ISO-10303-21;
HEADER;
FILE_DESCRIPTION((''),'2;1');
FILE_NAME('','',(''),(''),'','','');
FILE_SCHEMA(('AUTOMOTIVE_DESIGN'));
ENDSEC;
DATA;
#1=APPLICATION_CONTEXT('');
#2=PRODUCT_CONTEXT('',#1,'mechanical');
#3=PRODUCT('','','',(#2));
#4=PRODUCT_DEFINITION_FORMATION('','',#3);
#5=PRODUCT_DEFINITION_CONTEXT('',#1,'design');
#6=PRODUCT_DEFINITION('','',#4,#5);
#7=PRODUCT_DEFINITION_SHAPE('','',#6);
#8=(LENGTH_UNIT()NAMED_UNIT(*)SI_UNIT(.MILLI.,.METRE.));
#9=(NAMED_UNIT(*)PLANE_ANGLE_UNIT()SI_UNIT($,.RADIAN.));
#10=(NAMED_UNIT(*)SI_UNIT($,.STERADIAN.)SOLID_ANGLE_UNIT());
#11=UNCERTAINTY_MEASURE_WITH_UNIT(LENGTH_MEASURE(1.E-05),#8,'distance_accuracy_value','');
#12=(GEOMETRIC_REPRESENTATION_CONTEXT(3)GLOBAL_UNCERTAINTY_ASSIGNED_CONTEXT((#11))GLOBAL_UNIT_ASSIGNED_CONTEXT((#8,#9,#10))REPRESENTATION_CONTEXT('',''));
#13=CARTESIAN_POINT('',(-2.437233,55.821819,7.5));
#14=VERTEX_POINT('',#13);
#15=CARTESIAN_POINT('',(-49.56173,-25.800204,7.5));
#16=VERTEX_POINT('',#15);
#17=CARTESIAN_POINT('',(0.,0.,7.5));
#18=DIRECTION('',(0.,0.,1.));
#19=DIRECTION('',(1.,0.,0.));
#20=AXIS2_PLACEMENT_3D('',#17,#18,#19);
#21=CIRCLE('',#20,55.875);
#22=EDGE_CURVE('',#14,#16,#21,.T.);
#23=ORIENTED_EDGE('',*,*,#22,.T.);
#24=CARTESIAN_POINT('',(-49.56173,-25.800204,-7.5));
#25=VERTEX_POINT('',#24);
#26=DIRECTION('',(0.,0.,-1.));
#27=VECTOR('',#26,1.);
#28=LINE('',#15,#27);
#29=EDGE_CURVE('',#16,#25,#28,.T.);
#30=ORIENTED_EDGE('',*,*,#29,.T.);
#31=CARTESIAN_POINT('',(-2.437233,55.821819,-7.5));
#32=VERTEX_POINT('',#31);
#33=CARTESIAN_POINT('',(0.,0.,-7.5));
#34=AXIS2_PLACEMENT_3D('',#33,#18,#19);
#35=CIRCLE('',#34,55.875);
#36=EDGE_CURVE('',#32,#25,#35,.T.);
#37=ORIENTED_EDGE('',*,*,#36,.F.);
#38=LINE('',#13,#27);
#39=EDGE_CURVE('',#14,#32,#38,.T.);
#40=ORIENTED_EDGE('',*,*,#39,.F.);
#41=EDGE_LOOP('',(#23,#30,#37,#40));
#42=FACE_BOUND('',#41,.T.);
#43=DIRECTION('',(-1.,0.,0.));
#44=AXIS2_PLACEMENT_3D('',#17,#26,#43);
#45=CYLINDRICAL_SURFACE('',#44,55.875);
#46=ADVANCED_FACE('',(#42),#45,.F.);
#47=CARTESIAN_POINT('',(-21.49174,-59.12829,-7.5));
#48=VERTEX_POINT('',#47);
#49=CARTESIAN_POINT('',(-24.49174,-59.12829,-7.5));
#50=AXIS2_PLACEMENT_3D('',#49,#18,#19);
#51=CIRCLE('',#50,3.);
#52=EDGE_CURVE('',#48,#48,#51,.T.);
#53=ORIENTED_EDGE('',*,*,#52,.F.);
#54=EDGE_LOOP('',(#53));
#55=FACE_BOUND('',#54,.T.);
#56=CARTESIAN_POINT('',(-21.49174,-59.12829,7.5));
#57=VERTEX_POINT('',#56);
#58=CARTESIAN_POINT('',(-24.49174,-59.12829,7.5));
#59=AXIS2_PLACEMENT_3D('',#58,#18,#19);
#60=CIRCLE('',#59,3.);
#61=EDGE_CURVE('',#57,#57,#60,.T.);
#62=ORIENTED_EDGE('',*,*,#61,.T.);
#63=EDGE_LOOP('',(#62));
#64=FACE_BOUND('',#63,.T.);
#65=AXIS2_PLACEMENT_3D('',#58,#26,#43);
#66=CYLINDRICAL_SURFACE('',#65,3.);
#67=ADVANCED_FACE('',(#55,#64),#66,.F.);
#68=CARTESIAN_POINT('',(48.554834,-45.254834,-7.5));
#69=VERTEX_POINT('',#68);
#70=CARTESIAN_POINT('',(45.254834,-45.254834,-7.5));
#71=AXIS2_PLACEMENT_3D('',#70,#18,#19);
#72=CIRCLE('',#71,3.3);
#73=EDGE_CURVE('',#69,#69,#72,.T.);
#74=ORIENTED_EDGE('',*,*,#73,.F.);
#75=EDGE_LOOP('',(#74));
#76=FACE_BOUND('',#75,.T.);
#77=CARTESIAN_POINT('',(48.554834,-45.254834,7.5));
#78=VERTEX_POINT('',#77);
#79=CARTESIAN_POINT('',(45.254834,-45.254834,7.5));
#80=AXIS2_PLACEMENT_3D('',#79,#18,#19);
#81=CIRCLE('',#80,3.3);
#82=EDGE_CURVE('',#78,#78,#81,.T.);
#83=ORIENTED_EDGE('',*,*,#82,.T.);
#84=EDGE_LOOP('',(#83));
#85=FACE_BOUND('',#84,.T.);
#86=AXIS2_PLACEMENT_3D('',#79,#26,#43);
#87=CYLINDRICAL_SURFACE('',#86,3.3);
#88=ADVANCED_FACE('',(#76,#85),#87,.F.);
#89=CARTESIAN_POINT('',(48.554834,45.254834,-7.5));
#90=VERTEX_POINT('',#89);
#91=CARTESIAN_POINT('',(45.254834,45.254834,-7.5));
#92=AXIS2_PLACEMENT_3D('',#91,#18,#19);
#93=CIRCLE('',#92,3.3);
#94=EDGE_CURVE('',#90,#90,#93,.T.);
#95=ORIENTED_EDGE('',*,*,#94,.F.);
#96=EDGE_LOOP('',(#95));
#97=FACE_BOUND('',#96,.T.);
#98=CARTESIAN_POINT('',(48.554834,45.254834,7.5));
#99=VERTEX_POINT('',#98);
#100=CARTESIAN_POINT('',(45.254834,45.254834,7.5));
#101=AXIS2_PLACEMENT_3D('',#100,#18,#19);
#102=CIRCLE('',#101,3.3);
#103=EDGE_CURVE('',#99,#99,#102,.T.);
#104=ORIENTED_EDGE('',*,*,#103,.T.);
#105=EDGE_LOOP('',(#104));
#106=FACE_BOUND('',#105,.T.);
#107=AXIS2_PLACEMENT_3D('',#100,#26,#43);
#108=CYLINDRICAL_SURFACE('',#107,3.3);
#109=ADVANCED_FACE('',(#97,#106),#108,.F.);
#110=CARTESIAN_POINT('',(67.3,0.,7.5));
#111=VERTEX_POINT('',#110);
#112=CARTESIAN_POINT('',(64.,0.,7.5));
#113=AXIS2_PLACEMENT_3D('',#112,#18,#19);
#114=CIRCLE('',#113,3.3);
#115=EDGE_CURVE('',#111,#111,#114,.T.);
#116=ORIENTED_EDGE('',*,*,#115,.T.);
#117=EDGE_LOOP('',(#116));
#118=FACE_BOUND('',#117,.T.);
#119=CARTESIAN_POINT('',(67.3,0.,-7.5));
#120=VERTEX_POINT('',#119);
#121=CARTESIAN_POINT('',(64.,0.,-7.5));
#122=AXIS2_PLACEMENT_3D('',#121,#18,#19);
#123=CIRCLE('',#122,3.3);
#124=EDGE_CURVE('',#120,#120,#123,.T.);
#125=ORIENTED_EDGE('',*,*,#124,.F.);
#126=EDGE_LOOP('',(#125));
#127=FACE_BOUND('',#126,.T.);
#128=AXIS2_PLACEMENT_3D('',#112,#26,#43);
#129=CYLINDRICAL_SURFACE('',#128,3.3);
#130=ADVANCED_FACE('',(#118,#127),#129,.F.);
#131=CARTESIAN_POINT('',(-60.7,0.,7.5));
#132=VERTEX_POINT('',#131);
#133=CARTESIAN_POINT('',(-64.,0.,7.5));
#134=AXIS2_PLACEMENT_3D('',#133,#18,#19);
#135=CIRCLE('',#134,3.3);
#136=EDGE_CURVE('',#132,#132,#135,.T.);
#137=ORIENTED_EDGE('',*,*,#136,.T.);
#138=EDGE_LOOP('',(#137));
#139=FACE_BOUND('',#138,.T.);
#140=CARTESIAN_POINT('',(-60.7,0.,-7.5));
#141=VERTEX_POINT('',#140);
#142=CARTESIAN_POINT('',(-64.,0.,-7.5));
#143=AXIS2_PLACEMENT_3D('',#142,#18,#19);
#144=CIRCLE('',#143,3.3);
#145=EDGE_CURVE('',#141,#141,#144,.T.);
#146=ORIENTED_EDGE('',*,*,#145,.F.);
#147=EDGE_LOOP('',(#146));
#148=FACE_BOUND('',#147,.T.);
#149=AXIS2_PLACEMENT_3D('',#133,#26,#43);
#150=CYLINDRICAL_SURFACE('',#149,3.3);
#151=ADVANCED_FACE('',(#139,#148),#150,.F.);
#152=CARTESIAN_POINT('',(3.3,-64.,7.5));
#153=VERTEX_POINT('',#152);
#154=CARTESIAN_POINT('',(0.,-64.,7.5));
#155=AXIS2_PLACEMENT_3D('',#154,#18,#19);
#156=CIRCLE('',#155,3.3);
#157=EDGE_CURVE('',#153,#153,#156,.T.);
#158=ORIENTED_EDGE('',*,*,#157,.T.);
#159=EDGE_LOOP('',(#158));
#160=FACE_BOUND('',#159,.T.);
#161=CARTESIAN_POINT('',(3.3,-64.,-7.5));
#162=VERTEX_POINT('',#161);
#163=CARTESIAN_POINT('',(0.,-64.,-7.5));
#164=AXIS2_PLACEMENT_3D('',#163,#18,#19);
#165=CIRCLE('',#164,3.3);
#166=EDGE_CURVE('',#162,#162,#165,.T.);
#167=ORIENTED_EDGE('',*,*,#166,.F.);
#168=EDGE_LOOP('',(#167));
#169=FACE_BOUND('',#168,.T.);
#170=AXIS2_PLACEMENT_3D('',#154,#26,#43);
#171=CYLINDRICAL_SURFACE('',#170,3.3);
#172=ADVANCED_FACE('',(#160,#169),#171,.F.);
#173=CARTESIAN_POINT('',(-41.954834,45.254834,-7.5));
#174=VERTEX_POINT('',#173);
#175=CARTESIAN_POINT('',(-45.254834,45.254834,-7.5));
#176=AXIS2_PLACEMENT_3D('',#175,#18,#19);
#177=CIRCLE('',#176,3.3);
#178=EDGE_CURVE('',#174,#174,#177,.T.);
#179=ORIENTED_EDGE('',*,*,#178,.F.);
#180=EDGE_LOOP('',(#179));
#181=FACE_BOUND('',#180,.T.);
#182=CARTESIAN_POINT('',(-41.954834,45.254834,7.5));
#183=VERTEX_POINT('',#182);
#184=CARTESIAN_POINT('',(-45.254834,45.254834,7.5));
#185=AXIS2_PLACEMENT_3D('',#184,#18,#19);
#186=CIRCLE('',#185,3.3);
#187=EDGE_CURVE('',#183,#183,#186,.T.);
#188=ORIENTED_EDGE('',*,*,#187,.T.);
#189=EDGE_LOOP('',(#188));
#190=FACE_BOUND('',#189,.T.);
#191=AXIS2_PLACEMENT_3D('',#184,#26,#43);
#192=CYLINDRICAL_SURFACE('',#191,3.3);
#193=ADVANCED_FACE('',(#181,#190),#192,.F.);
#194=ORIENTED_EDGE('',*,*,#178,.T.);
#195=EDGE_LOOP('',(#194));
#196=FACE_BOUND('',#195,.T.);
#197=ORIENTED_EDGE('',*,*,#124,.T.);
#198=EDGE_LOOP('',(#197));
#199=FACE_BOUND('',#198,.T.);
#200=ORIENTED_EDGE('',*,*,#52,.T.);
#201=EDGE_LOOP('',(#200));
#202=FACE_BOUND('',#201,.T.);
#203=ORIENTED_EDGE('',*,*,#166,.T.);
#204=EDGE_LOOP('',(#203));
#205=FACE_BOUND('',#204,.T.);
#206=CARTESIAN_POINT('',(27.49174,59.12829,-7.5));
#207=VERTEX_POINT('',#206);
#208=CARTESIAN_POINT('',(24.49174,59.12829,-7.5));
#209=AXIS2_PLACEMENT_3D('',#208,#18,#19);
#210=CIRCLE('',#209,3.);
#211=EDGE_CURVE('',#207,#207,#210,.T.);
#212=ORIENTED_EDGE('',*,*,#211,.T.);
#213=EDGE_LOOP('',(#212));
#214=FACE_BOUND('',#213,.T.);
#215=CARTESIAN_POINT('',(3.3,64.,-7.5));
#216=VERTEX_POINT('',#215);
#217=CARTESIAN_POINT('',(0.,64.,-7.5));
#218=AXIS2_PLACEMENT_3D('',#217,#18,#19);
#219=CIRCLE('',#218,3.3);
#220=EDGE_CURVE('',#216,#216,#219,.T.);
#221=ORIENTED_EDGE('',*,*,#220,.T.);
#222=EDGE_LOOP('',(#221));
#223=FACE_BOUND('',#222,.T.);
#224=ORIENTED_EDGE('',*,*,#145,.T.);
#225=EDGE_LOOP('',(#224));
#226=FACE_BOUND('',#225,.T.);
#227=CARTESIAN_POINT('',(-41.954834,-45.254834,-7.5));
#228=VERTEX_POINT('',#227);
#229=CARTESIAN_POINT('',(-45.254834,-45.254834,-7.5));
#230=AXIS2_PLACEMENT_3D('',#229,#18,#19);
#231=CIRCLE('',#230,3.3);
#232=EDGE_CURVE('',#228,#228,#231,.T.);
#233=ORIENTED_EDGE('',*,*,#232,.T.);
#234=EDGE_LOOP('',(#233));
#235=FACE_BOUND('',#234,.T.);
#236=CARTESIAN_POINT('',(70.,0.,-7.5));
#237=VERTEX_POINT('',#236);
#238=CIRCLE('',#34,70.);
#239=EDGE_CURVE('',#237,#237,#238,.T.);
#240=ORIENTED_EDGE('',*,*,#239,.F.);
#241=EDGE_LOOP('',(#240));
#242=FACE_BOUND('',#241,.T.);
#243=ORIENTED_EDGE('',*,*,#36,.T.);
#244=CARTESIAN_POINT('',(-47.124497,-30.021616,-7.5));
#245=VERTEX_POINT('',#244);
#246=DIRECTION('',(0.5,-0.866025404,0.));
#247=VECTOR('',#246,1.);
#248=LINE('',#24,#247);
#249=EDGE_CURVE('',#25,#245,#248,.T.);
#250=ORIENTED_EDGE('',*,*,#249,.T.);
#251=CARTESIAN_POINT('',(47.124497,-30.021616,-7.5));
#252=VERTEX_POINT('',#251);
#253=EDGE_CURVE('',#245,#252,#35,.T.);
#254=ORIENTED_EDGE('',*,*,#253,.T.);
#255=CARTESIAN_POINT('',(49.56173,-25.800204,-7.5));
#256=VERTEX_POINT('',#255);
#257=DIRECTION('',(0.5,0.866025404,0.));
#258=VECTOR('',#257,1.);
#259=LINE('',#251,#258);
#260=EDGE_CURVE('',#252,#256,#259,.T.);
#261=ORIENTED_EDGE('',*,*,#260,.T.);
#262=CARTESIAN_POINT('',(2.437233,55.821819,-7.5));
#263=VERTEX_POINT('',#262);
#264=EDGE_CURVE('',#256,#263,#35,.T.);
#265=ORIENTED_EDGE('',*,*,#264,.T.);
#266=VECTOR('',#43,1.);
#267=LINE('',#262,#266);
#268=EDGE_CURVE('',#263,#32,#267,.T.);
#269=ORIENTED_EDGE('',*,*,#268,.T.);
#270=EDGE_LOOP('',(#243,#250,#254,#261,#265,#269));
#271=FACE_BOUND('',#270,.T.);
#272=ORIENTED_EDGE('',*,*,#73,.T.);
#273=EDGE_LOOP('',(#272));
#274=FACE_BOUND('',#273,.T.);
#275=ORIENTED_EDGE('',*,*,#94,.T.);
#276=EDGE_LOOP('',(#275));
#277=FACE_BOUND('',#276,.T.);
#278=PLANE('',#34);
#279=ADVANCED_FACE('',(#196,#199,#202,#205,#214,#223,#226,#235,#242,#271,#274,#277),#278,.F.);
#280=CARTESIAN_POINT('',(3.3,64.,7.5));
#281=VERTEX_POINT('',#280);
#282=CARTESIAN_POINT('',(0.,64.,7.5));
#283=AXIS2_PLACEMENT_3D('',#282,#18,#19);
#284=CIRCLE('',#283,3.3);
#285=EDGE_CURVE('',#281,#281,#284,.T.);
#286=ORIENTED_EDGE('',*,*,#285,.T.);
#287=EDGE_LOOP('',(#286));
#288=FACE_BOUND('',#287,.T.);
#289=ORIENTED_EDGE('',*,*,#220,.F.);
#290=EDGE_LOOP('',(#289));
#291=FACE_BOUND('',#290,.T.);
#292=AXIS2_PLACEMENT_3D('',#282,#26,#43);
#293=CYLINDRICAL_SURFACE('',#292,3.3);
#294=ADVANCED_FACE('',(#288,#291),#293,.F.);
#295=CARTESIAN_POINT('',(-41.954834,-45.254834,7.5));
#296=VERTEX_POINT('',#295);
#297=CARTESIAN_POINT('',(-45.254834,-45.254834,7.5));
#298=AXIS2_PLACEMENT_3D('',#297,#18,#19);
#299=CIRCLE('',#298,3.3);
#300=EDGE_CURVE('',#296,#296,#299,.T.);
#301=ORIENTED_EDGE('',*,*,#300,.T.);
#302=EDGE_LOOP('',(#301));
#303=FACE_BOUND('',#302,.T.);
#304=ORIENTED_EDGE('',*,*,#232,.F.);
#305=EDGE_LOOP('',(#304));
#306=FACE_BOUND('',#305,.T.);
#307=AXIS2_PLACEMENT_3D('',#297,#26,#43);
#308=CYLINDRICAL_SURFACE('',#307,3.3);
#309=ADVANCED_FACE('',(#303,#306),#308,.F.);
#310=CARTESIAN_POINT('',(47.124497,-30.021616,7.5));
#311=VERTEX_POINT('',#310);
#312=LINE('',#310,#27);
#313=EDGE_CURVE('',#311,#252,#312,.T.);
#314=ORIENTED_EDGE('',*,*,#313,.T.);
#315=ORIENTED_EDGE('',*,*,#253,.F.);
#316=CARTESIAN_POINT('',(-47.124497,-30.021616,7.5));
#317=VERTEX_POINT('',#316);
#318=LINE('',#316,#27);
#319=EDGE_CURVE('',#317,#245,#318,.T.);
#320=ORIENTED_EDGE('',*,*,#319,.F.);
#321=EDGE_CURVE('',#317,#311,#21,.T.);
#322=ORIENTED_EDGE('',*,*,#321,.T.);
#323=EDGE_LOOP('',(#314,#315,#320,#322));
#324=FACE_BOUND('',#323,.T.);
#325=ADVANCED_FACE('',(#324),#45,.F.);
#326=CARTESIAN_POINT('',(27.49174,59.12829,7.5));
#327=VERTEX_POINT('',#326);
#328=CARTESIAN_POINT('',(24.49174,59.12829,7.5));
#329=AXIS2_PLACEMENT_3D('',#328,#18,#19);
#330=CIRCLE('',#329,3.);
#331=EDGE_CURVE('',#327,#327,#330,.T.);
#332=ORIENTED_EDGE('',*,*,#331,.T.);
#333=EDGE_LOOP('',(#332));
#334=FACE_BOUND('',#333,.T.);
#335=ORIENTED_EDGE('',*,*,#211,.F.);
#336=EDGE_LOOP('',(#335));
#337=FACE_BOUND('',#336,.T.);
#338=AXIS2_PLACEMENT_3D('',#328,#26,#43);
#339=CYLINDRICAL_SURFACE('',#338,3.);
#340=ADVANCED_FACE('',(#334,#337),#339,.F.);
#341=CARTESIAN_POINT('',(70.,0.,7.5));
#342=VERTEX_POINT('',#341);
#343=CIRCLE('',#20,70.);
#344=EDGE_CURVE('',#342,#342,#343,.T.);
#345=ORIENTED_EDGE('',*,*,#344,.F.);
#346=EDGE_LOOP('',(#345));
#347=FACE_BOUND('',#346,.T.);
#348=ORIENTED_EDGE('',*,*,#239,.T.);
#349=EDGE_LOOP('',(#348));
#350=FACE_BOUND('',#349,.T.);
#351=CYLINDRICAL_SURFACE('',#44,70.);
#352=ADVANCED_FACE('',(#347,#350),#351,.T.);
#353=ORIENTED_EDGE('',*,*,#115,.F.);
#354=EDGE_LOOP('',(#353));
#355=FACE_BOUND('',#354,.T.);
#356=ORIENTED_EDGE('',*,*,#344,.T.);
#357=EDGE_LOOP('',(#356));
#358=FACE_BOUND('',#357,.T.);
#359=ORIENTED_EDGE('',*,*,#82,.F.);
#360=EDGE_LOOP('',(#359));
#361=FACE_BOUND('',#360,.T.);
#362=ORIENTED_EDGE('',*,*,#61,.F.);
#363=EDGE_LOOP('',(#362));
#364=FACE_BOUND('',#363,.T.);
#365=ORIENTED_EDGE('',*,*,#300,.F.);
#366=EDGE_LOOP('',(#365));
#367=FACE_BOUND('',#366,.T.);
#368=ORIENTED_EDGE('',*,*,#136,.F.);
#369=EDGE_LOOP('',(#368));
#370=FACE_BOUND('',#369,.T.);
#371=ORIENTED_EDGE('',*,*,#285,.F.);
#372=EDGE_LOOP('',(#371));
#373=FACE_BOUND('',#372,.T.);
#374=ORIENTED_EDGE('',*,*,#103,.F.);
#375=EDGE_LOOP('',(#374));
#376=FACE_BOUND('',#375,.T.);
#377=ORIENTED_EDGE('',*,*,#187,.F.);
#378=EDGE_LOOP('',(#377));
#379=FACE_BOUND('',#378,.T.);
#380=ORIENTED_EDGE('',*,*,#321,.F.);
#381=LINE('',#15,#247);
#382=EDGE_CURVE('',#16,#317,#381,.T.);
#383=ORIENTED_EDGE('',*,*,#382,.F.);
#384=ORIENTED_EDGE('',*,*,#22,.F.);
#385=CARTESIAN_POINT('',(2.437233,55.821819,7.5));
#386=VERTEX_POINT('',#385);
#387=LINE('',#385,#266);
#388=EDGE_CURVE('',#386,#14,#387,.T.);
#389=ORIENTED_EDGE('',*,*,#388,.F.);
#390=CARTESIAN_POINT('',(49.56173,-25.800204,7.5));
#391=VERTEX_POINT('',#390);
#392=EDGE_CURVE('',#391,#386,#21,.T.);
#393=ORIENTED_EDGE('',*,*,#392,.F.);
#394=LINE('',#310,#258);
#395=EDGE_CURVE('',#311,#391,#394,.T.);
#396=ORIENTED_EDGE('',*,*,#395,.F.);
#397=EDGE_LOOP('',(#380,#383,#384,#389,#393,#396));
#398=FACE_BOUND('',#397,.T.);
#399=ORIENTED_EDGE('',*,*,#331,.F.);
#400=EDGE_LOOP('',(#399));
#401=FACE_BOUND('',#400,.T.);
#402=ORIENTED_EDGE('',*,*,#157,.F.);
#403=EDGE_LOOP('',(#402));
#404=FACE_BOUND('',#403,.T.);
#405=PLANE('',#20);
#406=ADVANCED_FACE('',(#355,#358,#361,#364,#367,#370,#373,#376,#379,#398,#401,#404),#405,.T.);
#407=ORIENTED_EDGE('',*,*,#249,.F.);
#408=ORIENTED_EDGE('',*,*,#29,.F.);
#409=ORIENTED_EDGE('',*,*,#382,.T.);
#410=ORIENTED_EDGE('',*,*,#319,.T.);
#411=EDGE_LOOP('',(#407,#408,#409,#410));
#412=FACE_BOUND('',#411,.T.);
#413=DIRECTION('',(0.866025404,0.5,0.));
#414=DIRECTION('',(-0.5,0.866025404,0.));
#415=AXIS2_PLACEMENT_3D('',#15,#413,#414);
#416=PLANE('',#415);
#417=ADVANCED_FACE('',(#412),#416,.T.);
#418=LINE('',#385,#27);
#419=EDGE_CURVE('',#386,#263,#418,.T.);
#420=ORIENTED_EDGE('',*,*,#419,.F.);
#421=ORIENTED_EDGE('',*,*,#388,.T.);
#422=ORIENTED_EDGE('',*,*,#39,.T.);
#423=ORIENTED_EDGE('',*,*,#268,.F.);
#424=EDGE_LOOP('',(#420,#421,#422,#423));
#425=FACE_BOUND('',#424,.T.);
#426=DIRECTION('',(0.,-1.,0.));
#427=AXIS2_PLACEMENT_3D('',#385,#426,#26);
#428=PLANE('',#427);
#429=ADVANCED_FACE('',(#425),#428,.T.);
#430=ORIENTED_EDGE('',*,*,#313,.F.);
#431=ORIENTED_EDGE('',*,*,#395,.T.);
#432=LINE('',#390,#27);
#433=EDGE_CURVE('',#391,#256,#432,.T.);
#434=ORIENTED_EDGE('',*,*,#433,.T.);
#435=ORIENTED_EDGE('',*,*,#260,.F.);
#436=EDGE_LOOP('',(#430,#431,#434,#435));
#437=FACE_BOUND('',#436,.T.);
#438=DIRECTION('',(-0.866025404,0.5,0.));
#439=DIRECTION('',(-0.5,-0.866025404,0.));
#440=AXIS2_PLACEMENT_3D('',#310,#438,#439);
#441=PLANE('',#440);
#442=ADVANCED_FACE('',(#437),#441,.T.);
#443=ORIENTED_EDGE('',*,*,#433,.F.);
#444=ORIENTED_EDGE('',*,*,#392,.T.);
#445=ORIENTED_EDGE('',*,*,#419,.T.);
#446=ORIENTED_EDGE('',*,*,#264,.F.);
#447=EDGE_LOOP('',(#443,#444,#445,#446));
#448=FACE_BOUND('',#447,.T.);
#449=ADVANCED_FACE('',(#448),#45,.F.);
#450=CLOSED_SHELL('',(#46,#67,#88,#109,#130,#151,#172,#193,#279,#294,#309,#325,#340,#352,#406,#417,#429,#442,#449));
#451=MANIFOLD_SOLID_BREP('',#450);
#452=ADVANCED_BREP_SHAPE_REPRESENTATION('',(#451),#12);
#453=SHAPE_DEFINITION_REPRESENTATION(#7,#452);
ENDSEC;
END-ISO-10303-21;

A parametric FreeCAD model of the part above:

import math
import FreeCAD as App
import Part
import Sketcher
from FreeCAD import Vector
Q = App.Units.Quantity

doc = App.newDocument("Part")
body = doc.addObject("PartDesign::Body", "Body")

sketch1 = doc.addObject("Sketcher::SketchObject", "Sketch")
body.addObject(sketch1)
sketch1.AttachmentSupport = (doc.XY_Plane, [""])
sketch1.MapMode = "FlatFace"
sketch1.addGeometry([
    Part.Circle(Vector(0, 0, 0), Vector(0, 0, 1), 70),
    Part.Circle(Vector(-45.3, -45.3, 0), Vector(0, 0, 1), 3.3),
    Part.Circle(Vector(-24.5, -59.1, 0), Vector(0, 0, 1), 3),
    Part.Circle(Vector(0, -64, 0), Vector(0, 0, 1), 3.3),
    Part.Circle(Vector(45.3, -45.3, 0), Vector(0, 0, 1), 3.3),
    Part.LineSegment(Vector(-2.4, 55.8, 0), Vector(2.4, 55.8, 0)),
    Part.ArcOfCircle(Part.Circle(Vector(0, 0, 0), Vector(0, 0, 1), 55.9), math.radians(-27), math.radians(87)),
    Part.LineSegment(Vector(49.6, -25.8, 0), Vector(47.1, -30, 0)),
    Part.ArcOfCircle(Part.Circle(Vector(0, 0, 0), Vector(0, 0, 1), 55.9), math.radians(-148), math.radians(-32)),
    Part.LineSegment(Vector(-47.1, -30, 0), Vector(-49.6, -25.8, 0)),
    Part.ArcOfCircle(Part.Circle(Vector(0, 0, 0), Vector(0, 0, 1), 55.9), math.radians(93), math.radians(207)),
    Part.Circle(Vector(-64, 0, 0), Vector(0, 0, 1), 3.3),
    Part.Circle(Vector(-45.3, 45.3, 0), Vector(0, 0, 1), 3.3),
    Part.Circle(Vector(64, 0, 0), Vector(0, 0, 1), 3.3),
    Part.Circle(Vector(0, 64, 0), Vector(0, 0, 1), 3.3),
    Part.Circle(Vector(24.5, 59.1, 0), Vector(0, 0, 1), 3),
    Part.Circle(Vector(45.3, 45.3, 0), Vector(0, 0, 1), 3.3),
], False)
sketch1.addConstraint([
    Sketcher.Constraint("Coincident", 5, 2, 6, 2),
    Sketcher.Constraint("Coincident", 6, 1, 7, 1),
    Sketcher.Constraint("Coincident", 7, 2, 8, 2),
    Sketcher.Constraint("Coincident", 8, 1, 9, 1),
    Sketcher.Constraint("Coincident", 9, 2, 10, 2),
    Sketcher.Constraint("Coincident", 10, 1, 5, 1),
    Sketcher.Constraint("Horizontal", 5),
    Sketcher.Constraint("Coincident", 0, 3, -1, 1),
    Sketcher.Constraint("Coincident", 6, 3, -1, 1),
    Sketcher.Constraint("Coincident", 8, 3, -1, 1),
    Sketcher.Constraint("Coincident", 10, 3, -1, 1),
    Sketcher.Constraint("Equal", 1, 3),
    Sketcher.Constraint("Equal", 3, 4),
    Sketcher.Constraint("Equal", 6, 8),
    Sketcher.Constraint("Equal", 8, 10),
    Sketcher.Constraint("Equal", 4, 11),
    Sketcher.Constraint("Equal", 11, 12),
    Sketcher.Constraint("Equal", 12, 13),
    Sketcher.Constraint("Equal", 13, 14),
    Sketcher.Constraint("Equal", 2, 15),
    Sketcher.Constraint("Equal", 14, 16),
    Sketcher.Constraint("Symmetric", 4, 3, 12, 3, -1, 1),
    Sketcher.Constraint("Symmetric", 11, 3, 13, 3, -1, 1),
    Sketcher.Constraint("Symmetric", 3, 3, 14, 3, -1, 1),
    Sketcher.Constraint("Symmetric", 2, 3, 15, 3, -1, 1),
    Sketcher.Constraint("Symmetric", 1, 3, 16, 3, -1, 1),
    Sketcher.Constraint("Symmetric", 1, 3, 4, 3, -2),
    Sketcher.Constraint("PointOnObject", 3, 3, -2),
    Sketcher.Constraint("PointOnObject", 11, 3, -1),
    Sketcher.Constraint("Horizontal", 7, 2, 8, 1),
    Sketcher.Constraint("Horizontal", 6, 1, 9, 2),
    Sketcher.Constraint("Diameter", 0, 140.0),
    Sketcher.Constraint("Diameter", 2, 6.0),
    Sketcher.Constraint("Diameter", 1, 6.6),
    Sketcher.Constraint("Angle", 7, Q("-120 deg")),
    Sketcher.Constraint("DistanceY", 3, 3, -1, 1, 64.0),
    Sketcher.Constraint("DistanceX", 11, 3, -1, 1, 64.0),
    Sketcher.Constraint("Radius", 6, 55.875),
    Sketcher.Constraint("DistanceX", 5, 2, 16, 3, 42.817601),
    Sketcher.Constraint("DistanceX", 5, 1, 5, 2, 4.874467),
    Sketcher.Constraint("DistanceX", 2, 3, -1, 1, 24.49174),
    Sketcher.Constraint("DistanceY", 2, 3, -1, 1, 59.12829),
    Sketcher.Constraint("DistanceX", -1, 1, 6, 1, 49.56173),
    Sketcher.Constraint("DistanceY", 4, 3, 6, 1, 19.45463),
])
pad1 = doc.addObject("PartDesign::Pad", "Pad")
body.addObject(pad1)
pad1.Profile = sketch1
pad1.Length = 15
pad1.Midplane = True

doc.recompute()
